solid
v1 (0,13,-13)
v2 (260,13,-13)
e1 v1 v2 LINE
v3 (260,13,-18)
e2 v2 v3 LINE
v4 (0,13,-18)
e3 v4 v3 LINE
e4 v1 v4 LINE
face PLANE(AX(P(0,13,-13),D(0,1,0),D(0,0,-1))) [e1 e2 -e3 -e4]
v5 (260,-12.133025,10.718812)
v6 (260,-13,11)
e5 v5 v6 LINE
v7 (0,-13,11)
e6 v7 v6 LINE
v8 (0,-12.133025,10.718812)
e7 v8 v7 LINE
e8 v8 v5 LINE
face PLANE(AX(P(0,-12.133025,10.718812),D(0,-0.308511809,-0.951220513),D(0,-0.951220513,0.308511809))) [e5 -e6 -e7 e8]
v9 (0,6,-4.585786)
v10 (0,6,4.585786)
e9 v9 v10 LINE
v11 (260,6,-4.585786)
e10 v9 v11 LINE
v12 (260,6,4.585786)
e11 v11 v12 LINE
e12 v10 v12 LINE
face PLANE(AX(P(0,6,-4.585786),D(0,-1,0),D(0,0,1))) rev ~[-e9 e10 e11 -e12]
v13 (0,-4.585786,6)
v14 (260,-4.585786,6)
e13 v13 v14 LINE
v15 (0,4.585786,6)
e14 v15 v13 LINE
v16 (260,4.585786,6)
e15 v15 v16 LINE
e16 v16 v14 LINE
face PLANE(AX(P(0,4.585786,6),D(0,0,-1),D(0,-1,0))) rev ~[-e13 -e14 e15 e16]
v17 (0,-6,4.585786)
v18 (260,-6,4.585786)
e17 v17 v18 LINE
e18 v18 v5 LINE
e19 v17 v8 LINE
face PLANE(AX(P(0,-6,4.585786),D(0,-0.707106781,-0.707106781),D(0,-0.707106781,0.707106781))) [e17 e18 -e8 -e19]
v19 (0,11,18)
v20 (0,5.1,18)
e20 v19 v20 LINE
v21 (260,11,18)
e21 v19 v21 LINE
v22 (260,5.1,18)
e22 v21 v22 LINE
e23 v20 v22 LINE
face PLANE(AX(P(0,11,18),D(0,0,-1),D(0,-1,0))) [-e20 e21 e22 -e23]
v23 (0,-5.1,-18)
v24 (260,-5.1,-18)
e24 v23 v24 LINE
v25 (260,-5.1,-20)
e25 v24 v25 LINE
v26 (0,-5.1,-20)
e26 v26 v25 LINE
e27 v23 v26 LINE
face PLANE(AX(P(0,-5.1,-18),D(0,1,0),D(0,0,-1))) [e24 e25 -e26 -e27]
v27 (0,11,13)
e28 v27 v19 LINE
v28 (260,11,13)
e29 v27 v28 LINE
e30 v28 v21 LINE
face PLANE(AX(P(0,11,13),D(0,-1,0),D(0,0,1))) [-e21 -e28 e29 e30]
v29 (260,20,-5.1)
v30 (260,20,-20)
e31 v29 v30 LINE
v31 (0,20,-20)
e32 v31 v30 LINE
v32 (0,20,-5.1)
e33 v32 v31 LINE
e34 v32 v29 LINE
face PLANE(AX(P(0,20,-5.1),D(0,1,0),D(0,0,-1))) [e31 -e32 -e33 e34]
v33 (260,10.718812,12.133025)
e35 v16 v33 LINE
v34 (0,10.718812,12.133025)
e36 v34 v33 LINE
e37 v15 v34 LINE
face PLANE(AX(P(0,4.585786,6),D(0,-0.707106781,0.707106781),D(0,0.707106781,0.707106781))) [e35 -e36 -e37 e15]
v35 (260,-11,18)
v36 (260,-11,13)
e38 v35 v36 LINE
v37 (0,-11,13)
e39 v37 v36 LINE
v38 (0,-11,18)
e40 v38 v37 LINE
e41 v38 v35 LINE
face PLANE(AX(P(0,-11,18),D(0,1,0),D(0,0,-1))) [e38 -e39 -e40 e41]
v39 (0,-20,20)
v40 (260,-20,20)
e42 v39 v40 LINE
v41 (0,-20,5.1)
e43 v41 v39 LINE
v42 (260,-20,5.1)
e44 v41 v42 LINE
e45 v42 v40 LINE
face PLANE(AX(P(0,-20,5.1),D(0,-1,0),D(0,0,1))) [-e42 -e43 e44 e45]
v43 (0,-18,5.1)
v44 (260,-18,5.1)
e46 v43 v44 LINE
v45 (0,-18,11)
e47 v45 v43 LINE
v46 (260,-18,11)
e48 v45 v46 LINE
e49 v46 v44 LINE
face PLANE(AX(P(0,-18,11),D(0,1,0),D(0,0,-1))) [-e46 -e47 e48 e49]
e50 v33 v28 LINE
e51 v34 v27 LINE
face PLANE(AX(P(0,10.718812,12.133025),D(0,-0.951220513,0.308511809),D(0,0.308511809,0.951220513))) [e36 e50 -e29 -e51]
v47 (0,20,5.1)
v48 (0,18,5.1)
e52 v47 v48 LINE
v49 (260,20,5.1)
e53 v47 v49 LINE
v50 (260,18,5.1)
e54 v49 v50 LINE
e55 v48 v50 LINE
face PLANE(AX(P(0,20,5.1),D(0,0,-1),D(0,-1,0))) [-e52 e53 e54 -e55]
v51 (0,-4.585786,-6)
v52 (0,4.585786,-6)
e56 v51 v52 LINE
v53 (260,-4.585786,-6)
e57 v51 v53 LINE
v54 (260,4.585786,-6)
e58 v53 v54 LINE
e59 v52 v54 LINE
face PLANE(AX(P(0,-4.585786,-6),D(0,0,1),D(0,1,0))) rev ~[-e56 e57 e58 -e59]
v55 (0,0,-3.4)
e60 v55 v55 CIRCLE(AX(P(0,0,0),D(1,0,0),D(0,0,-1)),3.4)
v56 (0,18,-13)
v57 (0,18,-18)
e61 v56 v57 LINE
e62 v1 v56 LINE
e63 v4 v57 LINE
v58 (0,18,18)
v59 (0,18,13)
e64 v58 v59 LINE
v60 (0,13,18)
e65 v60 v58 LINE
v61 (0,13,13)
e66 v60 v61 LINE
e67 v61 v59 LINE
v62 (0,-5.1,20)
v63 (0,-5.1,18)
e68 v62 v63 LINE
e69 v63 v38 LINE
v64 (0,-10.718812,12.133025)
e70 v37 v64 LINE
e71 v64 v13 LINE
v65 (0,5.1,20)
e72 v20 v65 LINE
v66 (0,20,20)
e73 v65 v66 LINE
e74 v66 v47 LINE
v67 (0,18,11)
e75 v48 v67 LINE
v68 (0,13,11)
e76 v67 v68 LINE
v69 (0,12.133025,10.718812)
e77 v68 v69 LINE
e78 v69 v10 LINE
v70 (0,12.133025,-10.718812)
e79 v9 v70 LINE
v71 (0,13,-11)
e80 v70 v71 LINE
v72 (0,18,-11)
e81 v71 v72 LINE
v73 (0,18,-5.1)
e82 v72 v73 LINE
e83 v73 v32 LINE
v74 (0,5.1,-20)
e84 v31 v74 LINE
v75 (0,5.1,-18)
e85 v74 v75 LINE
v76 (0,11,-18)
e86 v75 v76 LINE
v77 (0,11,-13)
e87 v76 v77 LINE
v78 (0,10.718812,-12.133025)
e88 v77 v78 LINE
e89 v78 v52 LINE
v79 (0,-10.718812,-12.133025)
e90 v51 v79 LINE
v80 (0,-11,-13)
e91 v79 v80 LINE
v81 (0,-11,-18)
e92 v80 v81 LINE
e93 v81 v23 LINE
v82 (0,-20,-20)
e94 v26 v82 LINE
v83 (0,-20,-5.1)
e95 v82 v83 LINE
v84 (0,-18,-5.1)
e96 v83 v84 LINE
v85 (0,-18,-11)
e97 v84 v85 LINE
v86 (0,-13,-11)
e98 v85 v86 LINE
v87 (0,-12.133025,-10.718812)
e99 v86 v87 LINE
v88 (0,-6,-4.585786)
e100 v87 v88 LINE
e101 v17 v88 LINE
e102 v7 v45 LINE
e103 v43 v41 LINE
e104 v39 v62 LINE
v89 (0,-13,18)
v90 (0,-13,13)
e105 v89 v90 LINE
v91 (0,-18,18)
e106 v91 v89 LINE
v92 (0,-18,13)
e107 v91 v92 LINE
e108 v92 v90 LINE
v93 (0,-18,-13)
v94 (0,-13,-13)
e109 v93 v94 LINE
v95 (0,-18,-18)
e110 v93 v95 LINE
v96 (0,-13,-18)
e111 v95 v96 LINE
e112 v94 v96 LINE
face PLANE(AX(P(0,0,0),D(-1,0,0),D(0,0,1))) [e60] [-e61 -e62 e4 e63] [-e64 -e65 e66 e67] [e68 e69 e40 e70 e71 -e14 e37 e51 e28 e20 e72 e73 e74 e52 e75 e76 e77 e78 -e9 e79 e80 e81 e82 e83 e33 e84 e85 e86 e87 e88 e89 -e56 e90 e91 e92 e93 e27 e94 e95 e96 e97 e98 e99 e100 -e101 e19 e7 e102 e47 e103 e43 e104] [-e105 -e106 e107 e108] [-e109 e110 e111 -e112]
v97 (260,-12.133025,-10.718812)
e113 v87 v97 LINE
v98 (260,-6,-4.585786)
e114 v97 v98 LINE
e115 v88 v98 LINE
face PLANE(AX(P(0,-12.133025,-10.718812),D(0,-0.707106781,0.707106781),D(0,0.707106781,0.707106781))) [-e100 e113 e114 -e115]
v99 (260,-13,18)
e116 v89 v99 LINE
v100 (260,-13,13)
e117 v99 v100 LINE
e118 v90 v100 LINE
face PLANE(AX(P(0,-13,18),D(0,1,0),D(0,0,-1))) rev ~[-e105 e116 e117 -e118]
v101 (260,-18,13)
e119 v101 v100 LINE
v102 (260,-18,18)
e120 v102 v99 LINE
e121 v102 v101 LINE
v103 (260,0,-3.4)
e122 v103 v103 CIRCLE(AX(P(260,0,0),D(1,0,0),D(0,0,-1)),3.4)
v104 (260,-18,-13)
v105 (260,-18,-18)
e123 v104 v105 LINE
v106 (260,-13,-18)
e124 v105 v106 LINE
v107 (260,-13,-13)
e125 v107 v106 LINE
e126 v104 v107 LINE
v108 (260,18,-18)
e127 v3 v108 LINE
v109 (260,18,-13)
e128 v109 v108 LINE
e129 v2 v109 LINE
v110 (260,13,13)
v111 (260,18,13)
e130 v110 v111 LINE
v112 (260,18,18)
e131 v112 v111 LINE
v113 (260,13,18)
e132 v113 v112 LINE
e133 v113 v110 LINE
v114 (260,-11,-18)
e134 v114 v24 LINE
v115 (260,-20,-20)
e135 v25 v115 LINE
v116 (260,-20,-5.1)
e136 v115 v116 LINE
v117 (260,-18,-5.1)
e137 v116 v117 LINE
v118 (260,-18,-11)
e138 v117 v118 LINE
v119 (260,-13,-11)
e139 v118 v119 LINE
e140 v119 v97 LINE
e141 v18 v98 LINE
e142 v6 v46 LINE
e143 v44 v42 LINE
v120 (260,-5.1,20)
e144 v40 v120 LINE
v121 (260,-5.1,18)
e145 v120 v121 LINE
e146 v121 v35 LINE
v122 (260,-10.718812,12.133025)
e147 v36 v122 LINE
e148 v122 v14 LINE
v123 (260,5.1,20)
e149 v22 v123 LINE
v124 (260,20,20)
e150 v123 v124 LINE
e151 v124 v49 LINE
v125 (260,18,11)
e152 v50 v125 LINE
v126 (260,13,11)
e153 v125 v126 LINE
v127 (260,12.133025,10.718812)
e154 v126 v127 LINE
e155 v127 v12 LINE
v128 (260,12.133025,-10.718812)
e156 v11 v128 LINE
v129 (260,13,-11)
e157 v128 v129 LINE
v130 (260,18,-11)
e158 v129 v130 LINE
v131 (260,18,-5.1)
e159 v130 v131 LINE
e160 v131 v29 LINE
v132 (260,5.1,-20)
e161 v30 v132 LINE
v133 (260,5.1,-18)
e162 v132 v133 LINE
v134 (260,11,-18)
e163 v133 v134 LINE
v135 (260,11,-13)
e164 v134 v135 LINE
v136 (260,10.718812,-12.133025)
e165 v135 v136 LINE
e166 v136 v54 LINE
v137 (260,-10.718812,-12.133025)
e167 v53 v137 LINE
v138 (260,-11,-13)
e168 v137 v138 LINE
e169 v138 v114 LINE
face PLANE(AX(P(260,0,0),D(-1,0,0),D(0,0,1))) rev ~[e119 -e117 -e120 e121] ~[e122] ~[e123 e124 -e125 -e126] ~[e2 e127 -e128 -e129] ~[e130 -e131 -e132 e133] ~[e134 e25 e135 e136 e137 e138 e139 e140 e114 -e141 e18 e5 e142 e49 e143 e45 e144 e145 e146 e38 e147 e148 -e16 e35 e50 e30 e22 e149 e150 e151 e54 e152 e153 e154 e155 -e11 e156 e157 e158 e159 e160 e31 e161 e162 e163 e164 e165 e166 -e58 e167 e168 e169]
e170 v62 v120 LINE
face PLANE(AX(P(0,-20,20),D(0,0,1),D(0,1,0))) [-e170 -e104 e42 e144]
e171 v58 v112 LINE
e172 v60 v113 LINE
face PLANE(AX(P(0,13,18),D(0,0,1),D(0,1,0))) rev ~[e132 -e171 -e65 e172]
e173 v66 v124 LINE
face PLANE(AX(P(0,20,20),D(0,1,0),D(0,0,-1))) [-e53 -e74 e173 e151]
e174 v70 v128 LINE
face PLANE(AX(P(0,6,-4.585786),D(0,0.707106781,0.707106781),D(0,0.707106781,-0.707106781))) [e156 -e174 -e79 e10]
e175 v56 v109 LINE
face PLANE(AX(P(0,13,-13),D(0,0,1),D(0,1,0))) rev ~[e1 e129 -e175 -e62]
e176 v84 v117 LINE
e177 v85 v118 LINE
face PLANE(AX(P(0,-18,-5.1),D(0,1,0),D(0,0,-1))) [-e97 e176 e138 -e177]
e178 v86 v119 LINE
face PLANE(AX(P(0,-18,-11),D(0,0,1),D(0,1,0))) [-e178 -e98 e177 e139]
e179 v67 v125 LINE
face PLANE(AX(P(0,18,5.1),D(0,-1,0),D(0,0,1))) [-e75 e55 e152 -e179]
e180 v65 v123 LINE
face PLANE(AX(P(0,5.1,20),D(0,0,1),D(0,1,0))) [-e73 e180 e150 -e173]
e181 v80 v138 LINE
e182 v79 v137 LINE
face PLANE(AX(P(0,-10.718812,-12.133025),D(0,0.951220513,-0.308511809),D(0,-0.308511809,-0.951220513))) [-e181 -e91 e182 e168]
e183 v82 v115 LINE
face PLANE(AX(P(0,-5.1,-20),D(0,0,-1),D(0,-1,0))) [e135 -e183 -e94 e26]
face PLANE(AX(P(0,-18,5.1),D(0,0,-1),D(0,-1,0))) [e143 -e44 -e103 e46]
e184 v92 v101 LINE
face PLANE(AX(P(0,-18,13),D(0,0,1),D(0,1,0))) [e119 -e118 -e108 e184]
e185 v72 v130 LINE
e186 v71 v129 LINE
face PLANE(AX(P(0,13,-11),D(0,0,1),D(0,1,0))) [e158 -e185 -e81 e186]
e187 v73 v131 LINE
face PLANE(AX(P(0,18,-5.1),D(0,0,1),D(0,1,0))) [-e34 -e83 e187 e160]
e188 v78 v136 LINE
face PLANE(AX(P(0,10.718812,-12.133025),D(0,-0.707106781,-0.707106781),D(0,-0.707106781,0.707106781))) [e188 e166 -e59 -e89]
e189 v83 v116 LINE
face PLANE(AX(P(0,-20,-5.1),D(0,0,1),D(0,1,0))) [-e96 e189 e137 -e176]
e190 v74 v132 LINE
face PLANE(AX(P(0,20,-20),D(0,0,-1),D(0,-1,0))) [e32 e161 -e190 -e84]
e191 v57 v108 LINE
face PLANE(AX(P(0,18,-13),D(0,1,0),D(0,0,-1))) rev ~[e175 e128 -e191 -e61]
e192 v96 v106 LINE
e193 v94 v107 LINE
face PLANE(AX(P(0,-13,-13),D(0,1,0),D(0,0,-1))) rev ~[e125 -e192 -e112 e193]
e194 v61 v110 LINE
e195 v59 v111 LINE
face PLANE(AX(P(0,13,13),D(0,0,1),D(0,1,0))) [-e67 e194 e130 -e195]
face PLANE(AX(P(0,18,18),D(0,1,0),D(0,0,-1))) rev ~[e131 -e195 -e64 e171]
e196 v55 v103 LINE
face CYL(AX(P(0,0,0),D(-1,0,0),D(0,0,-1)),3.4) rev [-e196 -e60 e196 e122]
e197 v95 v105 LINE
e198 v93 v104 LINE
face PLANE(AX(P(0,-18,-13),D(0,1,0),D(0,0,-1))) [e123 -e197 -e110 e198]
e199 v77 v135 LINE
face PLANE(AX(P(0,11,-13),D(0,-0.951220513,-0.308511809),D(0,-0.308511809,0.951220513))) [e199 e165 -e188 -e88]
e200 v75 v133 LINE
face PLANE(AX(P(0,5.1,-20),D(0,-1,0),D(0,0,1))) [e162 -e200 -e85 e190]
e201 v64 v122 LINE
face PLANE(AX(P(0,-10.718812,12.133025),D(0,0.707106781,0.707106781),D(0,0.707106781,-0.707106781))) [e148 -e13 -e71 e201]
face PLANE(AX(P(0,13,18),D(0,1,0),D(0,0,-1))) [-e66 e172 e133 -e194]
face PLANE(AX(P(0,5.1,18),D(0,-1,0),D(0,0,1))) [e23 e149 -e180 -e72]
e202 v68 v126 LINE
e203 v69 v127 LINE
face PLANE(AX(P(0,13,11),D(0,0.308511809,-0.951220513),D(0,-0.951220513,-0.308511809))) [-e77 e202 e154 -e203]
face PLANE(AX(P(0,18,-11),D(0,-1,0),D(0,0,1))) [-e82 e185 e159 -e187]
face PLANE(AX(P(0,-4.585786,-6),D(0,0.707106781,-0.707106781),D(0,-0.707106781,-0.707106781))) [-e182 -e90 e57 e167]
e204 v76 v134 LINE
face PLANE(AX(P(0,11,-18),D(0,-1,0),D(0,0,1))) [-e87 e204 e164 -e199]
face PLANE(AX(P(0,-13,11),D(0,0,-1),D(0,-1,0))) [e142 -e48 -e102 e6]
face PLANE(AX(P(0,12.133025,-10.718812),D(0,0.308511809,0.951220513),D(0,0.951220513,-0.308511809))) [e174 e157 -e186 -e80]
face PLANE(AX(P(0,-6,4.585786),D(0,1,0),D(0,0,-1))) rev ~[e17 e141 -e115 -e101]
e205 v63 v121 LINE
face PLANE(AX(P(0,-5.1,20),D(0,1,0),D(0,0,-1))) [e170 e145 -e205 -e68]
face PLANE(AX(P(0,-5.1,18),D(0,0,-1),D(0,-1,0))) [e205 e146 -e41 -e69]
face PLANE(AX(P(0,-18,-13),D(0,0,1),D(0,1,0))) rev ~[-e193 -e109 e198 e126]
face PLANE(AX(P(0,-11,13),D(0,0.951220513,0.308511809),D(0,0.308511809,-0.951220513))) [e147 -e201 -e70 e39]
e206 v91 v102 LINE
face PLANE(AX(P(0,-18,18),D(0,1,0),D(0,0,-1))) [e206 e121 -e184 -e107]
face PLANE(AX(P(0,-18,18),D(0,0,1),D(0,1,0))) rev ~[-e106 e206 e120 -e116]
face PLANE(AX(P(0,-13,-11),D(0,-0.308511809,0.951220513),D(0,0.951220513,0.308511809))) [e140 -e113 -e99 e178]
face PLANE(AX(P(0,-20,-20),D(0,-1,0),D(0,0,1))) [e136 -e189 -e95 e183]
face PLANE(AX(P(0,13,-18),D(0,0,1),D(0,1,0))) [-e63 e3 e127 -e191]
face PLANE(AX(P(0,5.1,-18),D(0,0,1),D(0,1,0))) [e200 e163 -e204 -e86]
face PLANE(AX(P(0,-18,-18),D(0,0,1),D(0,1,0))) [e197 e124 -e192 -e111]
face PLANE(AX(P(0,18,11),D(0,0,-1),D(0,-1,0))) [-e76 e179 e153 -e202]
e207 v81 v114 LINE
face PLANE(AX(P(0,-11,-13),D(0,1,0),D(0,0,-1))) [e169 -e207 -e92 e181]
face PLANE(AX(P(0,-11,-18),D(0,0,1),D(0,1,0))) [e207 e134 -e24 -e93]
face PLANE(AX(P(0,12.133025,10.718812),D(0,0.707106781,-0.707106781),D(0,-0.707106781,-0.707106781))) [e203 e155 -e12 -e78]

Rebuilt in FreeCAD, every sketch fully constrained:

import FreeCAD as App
import Part
import Sketcher

V = App.Vector
Q = App.Units.Quantity


def add_polygon(sketch, points):
    """Adds a closed chain of lines whose ends are joined by coincident constraints."""
    first, n = sketch.GeometryCount, len(points)
    for a, b in zip(points, points[1:] + points[:1]):
        sketch.addGeometry(Part.LineSegment(App.Vector(*a, 0), App.Vector(*b, 0)), False)
    for i in range(n):
        sketch.addConstraint(Sketcher.Constraint("Coincident", first + i, 2, first + (i + 1) % n, 1))

doc = App.newDocument("Part")
body = doc.addObject("PartDesign::Body", "Body")

# Sketch on YZ plane
sketch1 = body.newObject("Sketcher::SketchObject", "Sketch")
sketch1.AttachmentSupport = (doc.getObject("YZ_Plane"), [""])
sketch1.MapMode = "FlatFace"
add_polygon(sketch1, [(6, -4.6), (6, 4.6), (12.1, 10.7), (13, 11), (18, 11), (18, 5.1), (20, 5.1), (20, 20), (5.1, 20), (5.1, 18), (11, 18), (11, 13), (10.7, 12.1), (4.6, 6), (-4.6, 6), (-10.7, 12.1), (-11, 13), (-11, 18), (-5.1, 18), (-5.1, 20), (-20, 20), (-20, 5.1), (-18, 5.1), (-18, 11), (-13, 11), (-12.1, 10.7), (-6, 4.6), (-6, -4.6), (-12.1, -10.7), (-13, -11), (-18, -11), (-18, -5.1), (-20, -5.1), (-20, -20), (-5.1, -20), (-5.1, -18), (-11, -18), (-11, -13), (-10.7, -12.1), (-4.6, -6), (4.6, -6), (10.7, -12.1), (11, -13), (11, -18), (5.1, -18), (5.1, -20), (20, -20), (20, -5.1), (18, -5.1), (18, -11), (13, -11), (12.1, -10.7)])  # lines 0-51
add_polygon(sketch1, [(-18, -13), (-13, -13), (-13, -18), (-18, -18)])  # lines 52-55
add_polygon(sketch1, [(-18, 18), (-13, 18), (-13, 13), (-18, 13)])  # lines 56-59
add_polygon(sketch1, [(13, -13), (18, -13), (18, -18), (13, -18)])  # lines 60-63
sketch1.addGeometry(Part.Circle(V(0, 0, 0), V(0, 0, 1), 3.4), False)  # 64
add_polygon(sketch1, [(13, 18), (18, 18), (18, 13), (13, 13)])  # lines 65-68
sketch1.addConstraint([
    Sketcher.Constraint("Vertical", 0),
    Sketcher.Constraint("Horizontal", 3),
    Sketcher.Constraint("Vertical", 4),
    Sketcher.Constraint("Horizontal", 5),
    Sketcher.Constraint("Vertical", 6),
    Sketcher.Constraint("Horizontal", 7),
    Sketcher.Constraint("Vertical", 8),
    Sketcher.Constraint("Horizontal", 9),
    Sketcher.Constraint("Vertical", 10),
    Sketcher.Constraint("Horizontal", 13),
    Sketcher.Constraint("Vertical", 16),
    Sketcher.Constraint("Horizontal", 17),
    Sketcher.Constraint("Vertical", 18),
    Sketcher.Constraint("Horizontal", 19),
    Sketcher.Constraint("Vertical", 20),
    Sketcher.Constraint("Horizontal", 21),
    Sketcher.Constraint("Vertical", 22),
    Sketcher.Constraint("Horizontal", 23),
    Sketcher.Constraint("Vertical", 26),
    Sketcher.Constraint("Horizontal", 29),
    Sketcher.Constraint("Vertical", 30),
    Sketcher.Constraint("Horizontal", 31),
    Sketcher.Constraint("Vertical", 32),
    Sketcher.Constraint("Horizontal", 33),
    Sketcher.Constraint("Vertical", 34),
    Sketcher.Constraint("Horizontal", 35),
    Sketcher.Constraint("Vertical", 36),
    Sketcher.Constraint("Horizontal", 39),
    Sketcher.Constraint("Vertical", 42),
    Sketcher.Constraint("Horizontal", 43),
    Sketcher.Constraint("Vertical", 44),
    Sketcher.Constraint("Horizontal", 45),
    Sketcher.Constraint("Vertical", 46),
    Sketcher.Constraint("Horizontal", 47),
    Sketcher.Constraint("Vertical", 48),
    Sketcher.Constraint("Horizontal", 49),
    Sketcher.Constraint("Horizontal", 52),
    Sketcher.Constraint("Vertical", 53),
    Sketcher.Constraint("Horizontal", 54),
    Sketcher.Constraint("Vertical", 55),
    Sketcher.Constraint("Horizontal", 56),
    Sketcher.Constraint("Vertical", 57),
    Sketcher.Constraint("Horizontal", 58),
    Sketcher.Constraint("Vertical", 59),
    Sketcher.Constraint("Horizontal", 60),
    Sketcher.Constraint("Vertical", 61),
    Sketcher.Constraint("Horizontal", 62),
    Sketcher.Constraint("Vertical", 63),
    Sketcher.Constraint("Horizontal", 65),
    Sketcher.Constraint("Vertical", 66),
    Sketcher.Constraint("Horizontal", 67),
    Sketcher.Constraint("Vertical", 68),
    Sketcher.Constraint("Coincident", 64, 3, -1, 1),
    Sketcher.Constraint("Symmetric", 0, 2, 26, 2, -1, 1),
    Sketcher.Constraint("Symmetric", 1, 2, 27, 2, -1, 1),
    Sketcher.Constraint("Symmetric", 2, 2, 28, 2, -1, 1),
    Sketcher.Constraint("Symmetric", 4, 2, 30, 2, -1, 1),
    Sketcher.Constraint("Symmetric", 6, 2, 32, 2, -1, 1),
    Sketcher.Constraint("Symmetric", 8, 2, 34, 2, -1, 1),
    Sketcher.Constraint("Symmetric", 10, 2, 36, 2, -1, 1),
    Sketcher.Constraint("Symmetric", 11, 2, 37, 2, -1, 1),
    Sketcher.Constraint("Symmetric", 12, 2, 38, 2, -1, 1),
    Sketcher.Constraint("Symmetric", 14, 2, 40, 2, -1, 1),
    Sketcher.Constraint("Symmetric", 15, 2, 41, 2, -1, 1),
    Sketcher.Constraint("Symmetric", 17, 2, 43, 2, -1, 1),
    Sketcher.Constraint("Symmetric", 19, 2, 45, 2, -1, 1),
    Sketcher.Constraint("Symmetric", 21, 2, 47, 2, -1, 1),
    Sketcher.Constraint("Symmetric", 23, 2, 49, 2, -1, 1),
    Sketcher.Constraint("Symmetric", 24, 2, 50, 2, -1, 1),
    Sketcher.Constraint("Symmetric", 58, 2, 60, 2, -1, 1),
    Sketcher.Constraint("Symmetric", 56, 2, 62, 2, -1, 1),
    Sketcher.Constraint("Symmetric", 54, 2, 65, 2, -1, 1),
    Sketcher.Constraint("Symmetric", 52, 2, 67, 2, -1, 1),
    Sketcher.Constraint("Symmetric", 11, 2, 14, 2, -2),
    Sketcher.Constraint("Symmetric", 10, 2, 15, 2, -2),
    Sketcher.Constraint("Symmetric", 8, 2, 17, 2, -2),
    Sketcher.Constraint("Symmetric", 6, 2, 19, 2, -2),
    Sketcher.Constraint("Symmetric", 4, 2, 21, 2, -2),
    Sketcher.Constraint("Symmetric", 2, 2, 23, 2, -2),
    Sketcher.Constraint("Symmetric", 1, 2, 24, 2, -2),
    Sketcher.Constraint("Symmetric", 55, 2, 60, 2, -2),
    Sketcher.Constraint("Symmetric", 53, 2, 62, 2, -2),
    Sketcher.Constraint("Parallel", 1, 12),
    Sketcher.Constraint("Perpendicular", 12, 14),
    Sketcher.Constraint("Perpendicular", 2, 15),
    Sketcher.Constraint("Parallel", 14, 25),
    Sketcher.Constraint("Perpendicular", 38, 40),
    Sketcher.Constraint("Parallel", 40, 51),
    Sketcher.Constraint("Horizontal", 0, 2, 25, 2),
    Sketcher.Constraint("Horizontal", 41, 2, 52, 2),
    Sketcher.Constraint("Horizontal", 43, 2, 53, 2),
    Sketcher.Constraint("Vertical", 28, 2, 52, 2),
    Sketcher.Constraint("Vertical", 30, 2, 54, 2),
    Sketcher.Constraint("Equal", 39, 0),
    Sketcher.Constraint("Equal", 43, 4),
    Sketcher.Constraint("Equal", 45, 6),
    Sketcher.Constraint("Equal", 47, 8),
    Sketcher.Constraint("Equal", 67, 10),
    Sketcher.Constraint("Equal", 2, 11),
    Sketcher.Constraint("Equal", 1, 12),
    Sketcher.Constraint("Diameter", 64, Q("6.8 mm")),
    Sketcher.Constraint("DistanceX", 3, 1, 3, 2, Q("5 mm")),
    Sketcher.Constraint("DistanceX", 5, 1, 5, 2, Q("2 mm")),
    Sketcher.Constraint("DistanceX", 7, 2, 7, 1, Q("14.9 mm")),
    Sketcher.Constraint("DistanceX", 9, 1, 9, 2, Q("5.9 mm")),
    Sketcher.Constraint("DistanceX", -1, 1, 0, 2, Q("6 mm")),
    Sketcher.Constraint("DistanceX", -1, 1, 2, 2, Q("13 mm")),
    Sketcher.Constraint("DistanceX", 13, 2, 13, 1, Q("9.171573 mm")),
    Sketcher.Constraint("DistanceY", -1, 1, 1, 2, Q("10.718812 mm")),
])
pad1 = body.newObject("PartDesign::Pad", "Pad")
pad1.Profile = sketch1
pad1.Length = 260

doc.recompute()
